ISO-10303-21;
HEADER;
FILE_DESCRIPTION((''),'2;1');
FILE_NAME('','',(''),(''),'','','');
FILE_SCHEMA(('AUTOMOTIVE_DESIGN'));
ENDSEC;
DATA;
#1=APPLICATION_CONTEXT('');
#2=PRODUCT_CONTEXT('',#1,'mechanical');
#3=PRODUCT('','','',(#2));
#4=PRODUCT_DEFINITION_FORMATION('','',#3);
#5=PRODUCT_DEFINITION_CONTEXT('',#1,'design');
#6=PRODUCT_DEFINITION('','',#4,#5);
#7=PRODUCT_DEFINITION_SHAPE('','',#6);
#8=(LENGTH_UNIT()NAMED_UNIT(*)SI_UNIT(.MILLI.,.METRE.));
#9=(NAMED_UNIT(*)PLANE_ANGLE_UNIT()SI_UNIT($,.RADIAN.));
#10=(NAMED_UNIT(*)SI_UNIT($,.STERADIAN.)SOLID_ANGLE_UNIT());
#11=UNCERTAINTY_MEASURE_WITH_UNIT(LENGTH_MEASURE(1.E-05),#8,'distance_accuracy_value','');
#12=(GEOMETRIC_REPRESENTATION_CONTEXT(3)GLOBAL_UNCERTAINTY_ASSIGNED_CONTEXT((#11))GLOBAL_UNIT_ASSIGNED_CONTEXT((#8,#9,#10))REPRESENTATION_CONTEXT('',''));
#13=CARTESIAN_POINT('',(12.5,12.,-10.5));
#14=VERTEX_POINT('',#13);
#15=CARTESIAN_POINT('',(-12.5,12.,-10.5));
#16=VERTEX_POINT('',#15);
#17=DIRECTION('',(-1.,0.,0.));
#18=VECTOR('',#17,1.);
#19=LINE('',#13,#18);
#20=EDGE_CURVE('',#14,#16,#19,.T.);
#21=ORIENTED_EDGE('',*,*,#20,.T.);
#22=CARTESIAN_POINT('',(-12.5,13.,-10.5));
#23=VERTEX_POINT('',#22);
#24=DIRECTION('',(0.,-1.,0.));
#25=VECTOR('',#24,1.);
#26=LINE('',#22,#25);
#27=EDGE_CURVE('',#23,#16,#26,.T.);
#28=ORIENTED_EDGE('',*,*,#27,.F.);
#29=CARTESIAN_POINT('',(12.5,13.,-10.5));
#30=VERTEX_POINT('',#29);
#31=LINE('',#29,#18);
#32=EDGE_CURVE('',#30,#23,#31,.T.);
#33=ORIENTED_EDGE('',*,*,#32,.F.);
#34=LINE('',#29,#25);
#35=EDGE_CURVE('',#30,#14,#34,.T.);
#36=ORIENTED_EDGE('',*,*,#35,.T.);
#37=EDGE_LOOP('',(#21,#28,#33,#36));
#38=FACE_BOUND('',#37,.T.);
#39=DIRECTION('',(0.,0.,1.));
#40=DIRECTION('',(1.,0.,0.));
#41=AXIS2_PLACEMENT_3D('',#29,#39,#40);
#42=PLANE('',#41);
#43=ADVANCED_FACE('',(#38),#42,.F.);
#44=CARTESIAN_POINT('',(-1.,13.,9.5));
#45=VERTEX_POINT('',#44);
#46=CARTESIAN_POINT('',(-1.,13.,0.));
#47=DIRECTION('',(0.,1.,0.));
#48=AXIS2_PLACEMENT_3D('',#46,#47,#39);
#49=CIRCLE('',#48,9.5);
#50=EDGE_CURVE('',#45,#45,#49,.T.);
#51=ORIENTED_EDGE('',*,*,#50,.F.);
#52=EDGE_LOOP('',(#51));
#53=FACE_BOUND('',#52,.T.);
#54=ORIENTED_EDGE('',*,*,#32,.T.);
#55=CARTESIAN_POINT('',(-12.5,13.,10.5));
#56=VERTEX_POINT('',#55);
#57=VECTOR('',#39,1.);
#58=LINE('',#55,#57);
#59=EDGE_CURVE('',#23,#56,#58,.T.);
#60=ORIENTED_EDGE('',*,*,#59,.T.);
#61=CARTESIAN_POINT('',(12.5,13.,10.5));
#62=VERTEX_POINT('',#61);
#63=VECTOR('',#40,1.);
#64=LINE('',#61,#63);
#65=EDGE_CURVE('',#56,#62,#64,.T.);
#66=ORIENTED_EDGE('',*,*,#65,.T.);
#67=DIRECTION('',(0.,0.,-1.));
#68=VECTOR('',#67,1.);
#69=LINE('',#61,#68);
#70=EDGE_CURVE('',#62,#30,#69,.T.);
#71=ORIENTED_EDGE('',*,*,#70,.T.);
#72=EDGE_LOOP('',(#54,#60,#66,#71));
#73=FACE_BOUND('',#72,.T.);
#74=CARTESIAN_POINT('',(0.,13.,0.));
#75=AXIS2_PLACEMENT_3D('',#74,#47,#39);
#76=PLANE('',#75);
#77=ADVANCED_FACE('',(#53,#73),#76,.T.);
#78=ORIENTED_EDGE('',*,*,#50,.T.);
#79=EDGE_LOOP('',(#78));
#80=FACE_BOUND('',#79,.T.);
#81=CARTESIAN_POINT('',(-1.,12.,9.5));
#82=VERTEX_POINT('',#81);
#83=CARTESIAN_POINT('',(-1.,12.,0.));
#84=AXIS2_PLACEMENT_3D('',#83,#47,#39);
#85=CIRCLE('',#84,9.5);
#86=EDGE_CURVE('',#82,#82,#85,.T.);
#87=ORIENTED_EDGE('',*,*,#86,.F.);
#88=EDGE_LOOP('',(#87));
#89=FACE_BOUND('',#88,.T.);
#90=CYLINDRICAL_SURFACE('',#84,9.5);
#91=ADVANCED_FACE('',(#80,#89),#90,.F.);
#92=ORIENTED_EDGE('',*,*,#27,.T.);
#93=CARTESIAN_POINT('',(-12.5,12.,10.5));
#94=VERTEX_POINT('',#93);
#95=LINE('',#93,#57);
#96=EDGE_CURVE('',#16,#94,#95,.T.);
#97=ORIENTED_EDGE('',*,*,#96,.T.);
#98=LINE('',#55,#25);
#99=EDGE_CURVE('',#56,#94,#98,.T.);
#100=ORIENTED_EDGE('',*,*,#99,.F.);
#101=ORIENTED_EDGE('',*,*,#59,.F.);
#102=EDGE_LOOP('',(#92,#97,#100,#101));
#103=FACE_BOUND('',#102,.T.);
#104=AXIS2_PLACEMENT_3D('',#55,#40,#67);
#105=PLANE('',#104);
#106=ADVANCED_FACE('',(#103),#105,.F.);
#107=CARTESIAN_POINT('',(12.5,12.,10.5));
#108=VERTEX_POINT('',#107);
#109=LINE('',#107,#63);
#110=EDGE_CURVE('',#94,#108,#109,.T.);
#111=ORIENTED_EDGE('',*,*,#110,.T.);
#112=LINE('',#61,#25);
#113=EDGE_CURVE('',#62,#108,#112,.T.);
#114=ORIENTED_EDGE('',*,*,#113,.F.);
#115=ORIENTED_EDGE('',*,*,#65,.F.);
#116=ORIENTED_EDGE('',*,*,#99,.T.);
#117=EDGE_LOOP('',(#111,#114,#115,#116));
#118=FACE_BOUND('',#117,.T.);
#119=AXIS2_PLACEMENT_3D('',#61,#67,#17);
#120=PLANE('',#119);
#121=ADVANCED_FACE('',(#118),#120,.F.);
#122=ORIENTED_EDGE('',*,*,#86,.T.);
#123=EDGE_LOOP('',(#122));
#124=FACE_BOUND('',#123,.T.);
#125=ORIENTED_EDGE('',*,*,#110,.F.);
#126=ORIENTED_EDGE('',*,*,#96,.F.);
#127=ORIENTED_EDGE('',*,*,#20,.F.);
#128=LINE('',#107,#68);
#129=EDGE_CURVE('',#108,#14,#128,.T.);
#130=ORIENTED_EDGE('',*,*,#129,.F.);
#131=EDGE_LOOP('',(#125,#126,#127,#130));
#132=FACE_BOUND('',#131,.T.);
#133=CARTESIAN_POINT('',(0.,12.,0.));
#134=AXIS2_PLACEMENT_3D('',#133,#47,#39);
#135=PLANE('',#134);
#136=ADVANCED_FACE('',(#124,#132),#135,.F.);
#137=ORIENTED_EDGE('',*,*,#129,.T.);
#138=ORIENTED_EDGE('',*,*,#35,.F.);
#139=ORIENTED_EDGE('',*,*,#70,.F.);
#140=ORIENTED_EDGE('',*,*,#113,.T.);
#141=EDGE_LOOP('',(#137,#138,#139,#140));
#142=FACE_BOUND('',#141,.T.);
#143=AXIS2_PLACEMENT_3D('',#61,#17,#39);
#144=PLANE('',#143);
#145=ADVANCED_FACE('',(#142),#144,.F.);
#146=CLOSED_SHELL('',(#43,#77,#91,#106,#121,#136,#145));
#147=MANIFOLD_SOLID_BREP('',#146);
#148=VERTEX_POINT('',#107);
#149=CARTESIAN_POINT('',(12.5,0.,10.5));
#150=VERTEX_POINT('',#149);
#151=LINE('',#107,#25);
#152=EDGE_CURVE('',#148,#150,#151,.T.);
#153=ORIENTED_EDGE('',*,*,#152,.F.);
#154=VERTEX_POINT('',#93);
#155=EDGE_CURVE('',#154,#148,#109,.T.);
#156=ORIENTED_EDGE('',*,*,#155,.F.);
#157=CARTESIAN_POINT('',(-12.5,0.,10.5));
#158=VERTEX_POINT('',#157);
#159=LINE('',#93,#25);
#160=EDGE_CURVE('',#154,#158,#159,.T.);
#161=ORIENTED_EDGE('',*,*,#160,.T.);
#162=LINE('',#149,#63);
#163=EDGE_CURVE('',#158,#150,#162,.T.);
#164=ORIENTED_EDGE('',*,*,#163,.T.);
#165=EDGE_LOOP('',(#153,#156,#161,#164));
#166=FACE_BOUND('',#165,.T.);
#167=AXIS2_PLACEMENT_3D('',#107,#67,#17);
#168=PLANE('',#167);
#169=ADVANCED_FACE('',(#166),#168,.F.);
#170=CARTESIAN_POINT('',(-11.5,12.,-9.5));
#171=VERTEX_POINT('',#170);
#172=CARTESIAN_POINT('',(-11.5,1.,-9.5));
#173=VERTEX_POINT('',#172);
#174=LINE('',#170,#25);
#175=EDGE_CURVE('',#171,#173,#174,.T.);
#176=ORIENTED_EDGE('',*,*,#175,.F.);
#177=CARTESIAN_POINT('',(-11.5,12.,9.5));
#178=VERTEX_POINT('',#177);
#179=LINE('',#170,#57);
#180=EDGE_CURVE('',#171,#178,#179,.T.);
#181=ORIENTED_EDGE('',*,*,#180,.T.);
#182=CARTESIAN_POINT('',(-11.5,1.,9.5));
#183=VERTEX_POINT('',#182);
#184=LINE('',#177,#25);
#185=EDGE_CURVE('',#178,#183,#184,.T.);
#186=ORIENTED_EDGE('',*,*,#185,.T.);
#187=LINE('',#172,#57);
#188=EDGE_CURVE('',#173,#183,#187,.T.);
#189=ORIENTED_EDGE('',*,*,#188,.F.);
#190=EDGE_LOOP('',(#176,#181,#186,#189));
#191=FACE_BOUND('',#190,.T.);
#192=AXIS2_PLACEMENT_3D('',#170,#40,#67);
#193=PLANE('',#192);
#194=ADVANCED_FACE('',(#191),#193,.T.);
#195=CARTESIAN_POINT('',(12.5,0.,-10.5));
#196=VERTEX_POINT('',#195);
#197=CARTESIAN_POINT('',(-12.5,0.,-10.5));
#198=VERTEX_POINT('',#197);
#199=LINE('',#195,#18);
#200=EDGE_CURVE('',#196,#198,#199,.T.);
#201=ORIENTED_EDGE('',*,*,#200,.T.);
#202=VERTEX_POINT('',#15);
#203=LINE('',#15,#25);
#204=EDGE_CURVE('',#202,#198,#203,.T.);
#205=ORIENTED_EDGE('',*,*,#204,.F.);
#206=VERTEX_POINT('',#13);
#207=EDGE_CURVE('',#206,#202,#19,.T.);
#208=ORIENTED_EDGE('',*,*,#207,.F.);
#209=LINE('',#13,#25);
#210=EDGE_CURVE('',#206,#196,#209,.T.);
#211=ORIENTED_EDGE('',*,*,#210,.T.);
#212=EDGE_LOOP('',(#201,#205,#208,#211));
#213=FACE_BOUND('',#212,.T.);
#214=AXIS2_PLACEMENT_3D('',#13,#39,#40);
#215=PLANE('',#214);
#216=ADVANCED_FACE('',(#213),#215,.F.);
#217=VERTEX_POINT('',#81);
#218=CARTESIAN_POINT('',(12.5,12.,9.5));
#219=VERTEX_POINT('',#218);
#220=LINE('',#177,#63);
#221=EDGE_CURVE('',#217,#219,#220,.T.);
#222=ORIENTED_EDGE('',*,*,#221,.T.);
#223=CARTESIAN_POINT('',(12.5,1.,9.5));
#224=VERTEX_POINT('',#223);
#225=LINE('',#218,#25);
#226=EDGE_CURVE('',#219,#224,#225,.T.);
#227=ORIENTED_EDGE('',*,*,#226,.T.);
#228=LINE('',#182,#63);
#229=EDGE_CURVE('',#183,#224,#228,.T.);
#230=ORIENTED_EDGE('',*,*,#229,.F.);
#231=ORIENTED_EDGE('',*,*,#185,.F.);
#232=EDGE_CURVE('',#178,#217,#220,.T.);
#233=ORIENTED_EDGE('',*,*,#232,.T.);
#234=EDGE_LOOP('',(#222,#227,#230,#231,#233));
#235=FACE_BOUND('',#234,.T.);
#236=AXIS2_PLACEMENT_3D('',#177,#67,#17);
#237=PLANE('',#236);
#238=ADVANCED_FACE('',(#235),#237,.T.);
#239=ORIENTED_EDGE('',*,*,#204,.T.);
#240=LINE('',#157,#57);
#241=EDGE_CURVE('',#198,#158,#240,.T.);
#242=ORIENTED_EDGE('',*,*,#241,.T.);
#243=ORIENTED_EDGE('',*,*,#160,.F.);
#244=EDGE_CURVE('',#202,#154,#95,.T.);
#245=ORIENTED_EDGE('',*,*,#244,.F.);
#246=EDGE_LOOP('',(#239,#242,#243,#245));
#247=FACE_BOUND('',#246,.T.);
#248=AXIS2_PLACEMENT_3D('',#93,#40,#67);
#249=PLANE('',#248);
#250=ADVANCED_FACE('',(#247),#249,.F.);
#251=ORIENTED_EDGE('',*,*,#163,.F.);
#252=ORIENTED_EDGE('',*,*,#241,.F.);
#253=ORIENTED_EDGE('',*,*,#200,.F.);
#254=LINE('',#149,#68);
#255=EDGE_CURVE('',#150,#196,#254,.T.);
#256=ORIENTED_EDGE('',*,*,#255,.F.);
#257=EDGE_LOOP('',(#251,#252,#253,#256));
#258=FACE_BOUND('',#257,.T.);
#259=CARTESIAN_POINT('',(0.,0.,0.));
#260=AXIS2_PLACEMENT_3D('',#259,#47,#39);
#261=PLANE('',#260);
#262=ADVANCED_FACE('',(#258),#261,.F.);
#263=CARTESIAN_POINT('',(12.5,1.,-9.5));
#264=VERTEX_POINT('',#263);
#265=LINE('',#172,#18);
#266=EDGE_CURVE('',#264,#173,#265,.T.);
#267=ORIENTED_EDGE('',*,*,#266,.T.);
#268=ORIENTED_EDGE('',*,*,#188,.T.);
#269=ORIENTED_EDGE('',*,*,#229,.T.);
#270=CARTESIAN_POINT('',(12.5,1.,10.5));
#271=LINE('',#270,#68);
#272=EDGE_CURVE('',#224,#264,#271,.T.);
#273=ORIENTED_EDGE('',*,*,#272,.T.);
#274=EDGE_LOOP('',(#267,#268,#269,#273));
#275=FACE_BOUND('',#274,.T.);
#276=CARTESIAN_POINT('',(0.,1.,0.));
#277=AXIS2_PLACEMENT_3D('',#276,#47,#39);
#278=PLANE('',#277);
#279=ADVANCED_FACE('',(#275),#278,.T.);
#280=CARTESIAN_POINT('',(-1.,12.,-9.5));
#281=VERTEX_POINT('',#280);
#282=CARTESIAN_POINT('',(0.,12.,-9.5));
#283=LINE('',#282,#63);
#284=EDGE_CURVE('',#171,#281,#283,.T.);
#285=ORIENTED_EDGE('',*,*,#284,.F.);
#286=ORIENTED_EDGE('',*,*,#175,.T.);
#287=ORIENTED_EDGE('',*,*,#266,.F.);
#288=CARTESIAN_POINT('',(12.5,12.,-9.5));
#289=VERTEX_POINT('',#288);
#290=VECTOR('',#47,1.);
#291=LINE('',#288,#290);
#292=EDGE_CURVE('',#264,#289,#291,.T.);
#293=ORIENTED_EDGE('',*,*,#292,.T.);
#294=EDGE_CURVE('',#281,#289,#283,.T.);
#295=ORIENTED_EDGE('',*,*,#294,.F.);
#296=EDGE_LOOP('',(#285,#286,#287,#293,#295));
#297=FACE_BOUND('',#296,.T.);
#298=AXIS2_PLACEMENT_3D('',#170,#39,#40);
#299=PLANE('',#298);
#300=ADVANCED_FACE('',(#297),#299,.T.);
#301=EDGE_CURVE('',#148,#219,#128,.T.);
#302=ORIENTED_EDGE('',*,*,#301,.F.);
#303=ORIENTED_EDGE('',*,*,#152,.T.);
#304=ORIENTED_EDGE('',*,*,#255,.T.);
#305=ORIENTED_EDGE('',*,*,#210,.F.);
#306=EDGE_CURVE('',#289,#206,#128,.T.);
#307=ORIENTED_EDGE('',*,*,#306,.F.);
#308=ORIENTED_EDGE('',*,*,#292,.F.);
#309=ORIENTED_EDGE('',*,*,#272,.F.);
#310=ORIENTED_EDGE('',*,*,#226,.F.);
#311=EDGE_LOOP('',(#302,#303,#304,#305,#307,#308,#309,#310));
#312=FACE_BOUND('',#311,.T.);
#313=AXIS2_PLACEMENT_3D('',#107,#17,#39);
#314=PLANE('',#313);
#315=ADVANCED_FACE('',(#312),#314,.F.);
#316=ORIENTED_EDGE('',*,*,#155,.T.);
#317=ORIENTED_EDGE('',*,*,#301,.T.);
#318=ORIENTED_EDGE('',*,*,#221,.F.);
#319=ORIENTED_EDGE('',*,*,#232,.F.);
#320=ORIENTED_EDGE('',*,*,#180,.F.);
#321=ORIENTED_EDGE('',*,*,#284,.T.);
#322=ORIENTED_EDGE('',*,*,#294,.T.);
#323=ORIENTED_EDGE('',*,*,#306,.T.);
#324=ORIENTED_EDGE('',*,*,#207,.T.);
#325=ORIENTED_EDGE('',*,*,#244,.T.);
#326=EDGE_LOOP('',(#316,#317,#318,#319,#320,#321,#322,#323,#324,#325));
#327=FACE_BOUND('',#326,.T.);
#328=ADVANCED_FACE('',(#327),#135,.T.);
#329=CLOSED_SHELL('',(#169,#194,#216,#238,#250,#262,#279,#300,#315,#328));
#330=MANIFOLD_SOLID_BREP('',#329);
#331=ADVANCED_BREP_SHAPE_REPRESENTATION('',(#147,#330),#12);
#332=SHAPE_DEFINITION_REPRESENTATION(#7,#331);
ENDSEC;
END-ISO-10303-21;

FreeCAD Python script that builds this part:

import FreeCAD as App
import Part
import Sketcher
from FreeCAD import Vector
Q = App.Units.Quantity

doc = App.newDocument("Part")
params = doc.addObject("Spreadsheet::Sheet", "Params")
for row, (alias, value) in enumerate([
    ("sketch1_width", "25 mm"),
    ("sketch1_height", "21 mm"),
    ("pad1_length", "12 mm"),
    ("sketch2_width", "25 mm"),
    ("sketch2_height", "19 mm"),
    ("pocket1_length", "11 mm"),
    ("sketch3_width", "25 mm"),
    ("sketch3_height", "21 mm"),
    ("pad2_length", "1 mm"),
    ("sketch4_diameter", "19 mm"),
    ("pocket2_length", "1 mm"),
], start=1):
    params.set(f"A{row}", alias)
    params.set(f"B{row}", "=" + value)
    params.setAlias(f"B{row}", alias)

body = doc.addObject("PartDesign::Body", "Body")

sketch1 = body.newObject("Sketcher::SketchObject", "Sketch")
sketch1.AttachmentSupport = (doc.getObject("XZ_Plane"), [""])
sketch1.MapMode = "FlatFace"
sketch1.addGeometry([
    Part.LineSegment(Vector(-12, -10, 0), Vector(-12, 10, 0)),
    Part.LineSegment(Vector(-12, 10, 0), Vector(12, 10, 0)),
    Part.LineSegment(Vector(12, 10, 0), Vector(12, -10, 0)),
    Part.LineSegment(Vector(12, -10, 0), Vector(-12, -10, 0)),
], False)
sketch1.addConstraint([
    Sketcher.Constraint("Coincident", 0, 2, 1, 1),
    Sketcher.Constraint("Coincident", 1, 2, 2, 1),
    Sketcher.Constraint("Coincident", 2, 2, 3, 1),
    Sketcher.Constraint("Coincident", 3, 2, 0, 1),
    Sketcher.Constraint("Vertical", 0),
    Sketcher.Constraint("Horizontal", 1),
    Sketcher.Constraint("Vertical", 2),
    Sketcher.Constraint("Horizontal", 3),
    Sketcher.Constraint("Symmetric", 0, 2, 2, 2, -1, 1),
    Sketcher.Constraint("DistanceX", 1, 1, 1, 2, Q("25 mm")),
    Sketcher.Constraint("DistanceY", 0, 1, 0, 2, Q("21 mm")),
])
sketch1.setExpression("Constraints[9]", "Params.sketch1_width")
sketch1.setExpression("Constraints[10]", "Params.sketch1_height")
pad1 = body.newObject("PartDesign::Pad", "Pad")
pad1.Profile = sketch1
pad1.setExpression("Length", "Params.pad1_length")
pad1.Reversed = True

sketch2 = body.newObject("Sketcher::SketchObject", "Sketch001")
sketch2.AttachmentSupport = (doc.getObject("XZ_Plane"), [""])
sketch2.MapMode = "FlatFace"
sketch2.AttachmentOffset = App.Placement(Vector(0, 0, -1), App.Rotation())
sketch2.addGeometry([
    Part.LineSegment(Vector(-12, -10, 0), Vector(-12, 10, 0)),
    Part.LineSegment(Vector(-12, 10, 0), Vector(14, 10, 0)),
    Part.LineSegment(Vector(14, 10, 0), Vector(14, -10, 0)),
    Part.LineSegment(Vector(14, -10, 0), Vector(-12, -10, 0)),
], False)
sketch2.addConstraint([
    Sketcher.Constraint("Coincident", 0, 2, 1, 1),
    Sketcher.Constraint("Coincident", 1, 2, 2, 1),
    Sketcher.Constraint("Coincident", 2, 2, 3, 1),
    Sketcher.Constraint("Coincident", 3, 2, 0, 1),
    Sketcher.Constraint("Vertical", 0),
    Sketcher.Constraint("Horizontal", 1),
    Sketcher.Constraint("Vertical", 2),
    Sketcher.Constraint("Horizontal", 3),
    Sketcher.Constraint("DistanceX", 1, 1, 1, 2, Q("25 mm")),
    Sketcher.Constraint("DistanceY", 0, 1, 0, 2, Q("19 mm")),
    Sketcher.Constraint("DistanceX", 0, 2, -1, 1, Q("11.5 mm")),
    Sketcher.Constraint("DistanceY", -1, 1, 0, 2, Q("9.5 mm")),
])
sketch2.setExpression("Constraints[8]", "Params.sketch2_width")
sketch2.setExpression("Constraints[9]", "Params.sketch2_height")
pocket1 = body.newObject("PartDesign::Pocket", "Pocket")
pocket1.Profile = sketch2
pocket1.setExpression("Length", "Params.pocket1_length")
body2 = doc.addObject("PartDesign::Body", "Body001")

sketch3 = body2.newObject("Sketcher::SketchObject", "Sketch002")
sketch3.AttachmentSupport = (doc.getObject("XZ_Plane001"), [""])
sketch3.MapMode = "FlatFace"
sketch3.AttachmentOffset = App.Placement(Vector(0, 0, -12), App.Rotation())
sketch3.addGeometry([
    Part.LineSegment(Vector(-12, -10, 0), Vector(-12, 10, 0)),
    Part.LineSegment(Vector(-12, 10, 0), Vector(12, 10, 0)),
    Part.LineSegment(Vector(12, 10, 0), Vector(12, -10, 0)),
    Part.LineSegment(Vector(12, -10, 0), Vector(-12, -10, 0)),
], False)
sketch3.addConstraint([
    Sketcher.Constraint("Coincident", 0, 2, 1, 1),
    Sketcher.Constraint("Coincident", 1, 2, 2, 1),
    Sketcher.Constraint("Coincident", 2, 2, 3, 1),
    Sketcher.Constraint("Coincident", 3, 2, 0, 1),
    Sketcher.Constraint("Vertical", 0),
    Sketcher.Constraint("Horizontal", 1),
    Sketcher.Constraint("Vertical", 2),
    Sketcher.Constraint("Horizontal", 3),
    Sketcher.Constraint("Symmetric", 0, 2, 2, 2, -1, 1),
    Sketcher.Constraint("DistanceX", 1, 1, 1, 2, Q("25 mm")),
    Sketcher.Constraint("DistanceY", 0, 1, 0, 2, Q("21 mm")),
])
sketch3.setExpression("Constraints[9]", "Params.sketch3_width")
sketch3.setExpression("Constraints[10]", "Params.sketch3_height")
pad2 = body2.newObject("PartDesign::Pad", "Pad001")
pad2.Profile = sketch3
pad2.setExpression("Length", "Params.pad2_length")
pad2.Reversed = True

sketch4 = body2.newObject("Sketcher::SketchObject", "Sketch003")
sketch4.AttachmentSupport = (doc.getObject("XZ_Plane001"), [""])
sketch4.MapMode = "FlatFace"
sketch4.AttachmentOffset = App.Placement(Vector(0, 0, -13), App.Rotation())
sketch4.addGeometry(Part.Circle(Vector(-1, 0, 0), Vector(0, 0, 1), 10), False)
sketch4.addConstraint([
    Sketcher.Constraint("PointOnObject", 0, 3, -1),
    Sketcher.Constraint("Diameter", 0, Q("19 mm")),
    Sketcher.Constraint("DistanceX", 0, 3, -1, 1, Q("1 mm")),
])
sketch4.setExpression("Constraints[1]", "Params.sketch4_diameter")
pocket2 = body2.newObject("PartDesign::Pocket", "Pocket001")
pocket2.Profile = sketch4
pocket2.setExpression("Length", "Params.pocket2_length")
pocket2.Reversed = True

doc.recompute()
